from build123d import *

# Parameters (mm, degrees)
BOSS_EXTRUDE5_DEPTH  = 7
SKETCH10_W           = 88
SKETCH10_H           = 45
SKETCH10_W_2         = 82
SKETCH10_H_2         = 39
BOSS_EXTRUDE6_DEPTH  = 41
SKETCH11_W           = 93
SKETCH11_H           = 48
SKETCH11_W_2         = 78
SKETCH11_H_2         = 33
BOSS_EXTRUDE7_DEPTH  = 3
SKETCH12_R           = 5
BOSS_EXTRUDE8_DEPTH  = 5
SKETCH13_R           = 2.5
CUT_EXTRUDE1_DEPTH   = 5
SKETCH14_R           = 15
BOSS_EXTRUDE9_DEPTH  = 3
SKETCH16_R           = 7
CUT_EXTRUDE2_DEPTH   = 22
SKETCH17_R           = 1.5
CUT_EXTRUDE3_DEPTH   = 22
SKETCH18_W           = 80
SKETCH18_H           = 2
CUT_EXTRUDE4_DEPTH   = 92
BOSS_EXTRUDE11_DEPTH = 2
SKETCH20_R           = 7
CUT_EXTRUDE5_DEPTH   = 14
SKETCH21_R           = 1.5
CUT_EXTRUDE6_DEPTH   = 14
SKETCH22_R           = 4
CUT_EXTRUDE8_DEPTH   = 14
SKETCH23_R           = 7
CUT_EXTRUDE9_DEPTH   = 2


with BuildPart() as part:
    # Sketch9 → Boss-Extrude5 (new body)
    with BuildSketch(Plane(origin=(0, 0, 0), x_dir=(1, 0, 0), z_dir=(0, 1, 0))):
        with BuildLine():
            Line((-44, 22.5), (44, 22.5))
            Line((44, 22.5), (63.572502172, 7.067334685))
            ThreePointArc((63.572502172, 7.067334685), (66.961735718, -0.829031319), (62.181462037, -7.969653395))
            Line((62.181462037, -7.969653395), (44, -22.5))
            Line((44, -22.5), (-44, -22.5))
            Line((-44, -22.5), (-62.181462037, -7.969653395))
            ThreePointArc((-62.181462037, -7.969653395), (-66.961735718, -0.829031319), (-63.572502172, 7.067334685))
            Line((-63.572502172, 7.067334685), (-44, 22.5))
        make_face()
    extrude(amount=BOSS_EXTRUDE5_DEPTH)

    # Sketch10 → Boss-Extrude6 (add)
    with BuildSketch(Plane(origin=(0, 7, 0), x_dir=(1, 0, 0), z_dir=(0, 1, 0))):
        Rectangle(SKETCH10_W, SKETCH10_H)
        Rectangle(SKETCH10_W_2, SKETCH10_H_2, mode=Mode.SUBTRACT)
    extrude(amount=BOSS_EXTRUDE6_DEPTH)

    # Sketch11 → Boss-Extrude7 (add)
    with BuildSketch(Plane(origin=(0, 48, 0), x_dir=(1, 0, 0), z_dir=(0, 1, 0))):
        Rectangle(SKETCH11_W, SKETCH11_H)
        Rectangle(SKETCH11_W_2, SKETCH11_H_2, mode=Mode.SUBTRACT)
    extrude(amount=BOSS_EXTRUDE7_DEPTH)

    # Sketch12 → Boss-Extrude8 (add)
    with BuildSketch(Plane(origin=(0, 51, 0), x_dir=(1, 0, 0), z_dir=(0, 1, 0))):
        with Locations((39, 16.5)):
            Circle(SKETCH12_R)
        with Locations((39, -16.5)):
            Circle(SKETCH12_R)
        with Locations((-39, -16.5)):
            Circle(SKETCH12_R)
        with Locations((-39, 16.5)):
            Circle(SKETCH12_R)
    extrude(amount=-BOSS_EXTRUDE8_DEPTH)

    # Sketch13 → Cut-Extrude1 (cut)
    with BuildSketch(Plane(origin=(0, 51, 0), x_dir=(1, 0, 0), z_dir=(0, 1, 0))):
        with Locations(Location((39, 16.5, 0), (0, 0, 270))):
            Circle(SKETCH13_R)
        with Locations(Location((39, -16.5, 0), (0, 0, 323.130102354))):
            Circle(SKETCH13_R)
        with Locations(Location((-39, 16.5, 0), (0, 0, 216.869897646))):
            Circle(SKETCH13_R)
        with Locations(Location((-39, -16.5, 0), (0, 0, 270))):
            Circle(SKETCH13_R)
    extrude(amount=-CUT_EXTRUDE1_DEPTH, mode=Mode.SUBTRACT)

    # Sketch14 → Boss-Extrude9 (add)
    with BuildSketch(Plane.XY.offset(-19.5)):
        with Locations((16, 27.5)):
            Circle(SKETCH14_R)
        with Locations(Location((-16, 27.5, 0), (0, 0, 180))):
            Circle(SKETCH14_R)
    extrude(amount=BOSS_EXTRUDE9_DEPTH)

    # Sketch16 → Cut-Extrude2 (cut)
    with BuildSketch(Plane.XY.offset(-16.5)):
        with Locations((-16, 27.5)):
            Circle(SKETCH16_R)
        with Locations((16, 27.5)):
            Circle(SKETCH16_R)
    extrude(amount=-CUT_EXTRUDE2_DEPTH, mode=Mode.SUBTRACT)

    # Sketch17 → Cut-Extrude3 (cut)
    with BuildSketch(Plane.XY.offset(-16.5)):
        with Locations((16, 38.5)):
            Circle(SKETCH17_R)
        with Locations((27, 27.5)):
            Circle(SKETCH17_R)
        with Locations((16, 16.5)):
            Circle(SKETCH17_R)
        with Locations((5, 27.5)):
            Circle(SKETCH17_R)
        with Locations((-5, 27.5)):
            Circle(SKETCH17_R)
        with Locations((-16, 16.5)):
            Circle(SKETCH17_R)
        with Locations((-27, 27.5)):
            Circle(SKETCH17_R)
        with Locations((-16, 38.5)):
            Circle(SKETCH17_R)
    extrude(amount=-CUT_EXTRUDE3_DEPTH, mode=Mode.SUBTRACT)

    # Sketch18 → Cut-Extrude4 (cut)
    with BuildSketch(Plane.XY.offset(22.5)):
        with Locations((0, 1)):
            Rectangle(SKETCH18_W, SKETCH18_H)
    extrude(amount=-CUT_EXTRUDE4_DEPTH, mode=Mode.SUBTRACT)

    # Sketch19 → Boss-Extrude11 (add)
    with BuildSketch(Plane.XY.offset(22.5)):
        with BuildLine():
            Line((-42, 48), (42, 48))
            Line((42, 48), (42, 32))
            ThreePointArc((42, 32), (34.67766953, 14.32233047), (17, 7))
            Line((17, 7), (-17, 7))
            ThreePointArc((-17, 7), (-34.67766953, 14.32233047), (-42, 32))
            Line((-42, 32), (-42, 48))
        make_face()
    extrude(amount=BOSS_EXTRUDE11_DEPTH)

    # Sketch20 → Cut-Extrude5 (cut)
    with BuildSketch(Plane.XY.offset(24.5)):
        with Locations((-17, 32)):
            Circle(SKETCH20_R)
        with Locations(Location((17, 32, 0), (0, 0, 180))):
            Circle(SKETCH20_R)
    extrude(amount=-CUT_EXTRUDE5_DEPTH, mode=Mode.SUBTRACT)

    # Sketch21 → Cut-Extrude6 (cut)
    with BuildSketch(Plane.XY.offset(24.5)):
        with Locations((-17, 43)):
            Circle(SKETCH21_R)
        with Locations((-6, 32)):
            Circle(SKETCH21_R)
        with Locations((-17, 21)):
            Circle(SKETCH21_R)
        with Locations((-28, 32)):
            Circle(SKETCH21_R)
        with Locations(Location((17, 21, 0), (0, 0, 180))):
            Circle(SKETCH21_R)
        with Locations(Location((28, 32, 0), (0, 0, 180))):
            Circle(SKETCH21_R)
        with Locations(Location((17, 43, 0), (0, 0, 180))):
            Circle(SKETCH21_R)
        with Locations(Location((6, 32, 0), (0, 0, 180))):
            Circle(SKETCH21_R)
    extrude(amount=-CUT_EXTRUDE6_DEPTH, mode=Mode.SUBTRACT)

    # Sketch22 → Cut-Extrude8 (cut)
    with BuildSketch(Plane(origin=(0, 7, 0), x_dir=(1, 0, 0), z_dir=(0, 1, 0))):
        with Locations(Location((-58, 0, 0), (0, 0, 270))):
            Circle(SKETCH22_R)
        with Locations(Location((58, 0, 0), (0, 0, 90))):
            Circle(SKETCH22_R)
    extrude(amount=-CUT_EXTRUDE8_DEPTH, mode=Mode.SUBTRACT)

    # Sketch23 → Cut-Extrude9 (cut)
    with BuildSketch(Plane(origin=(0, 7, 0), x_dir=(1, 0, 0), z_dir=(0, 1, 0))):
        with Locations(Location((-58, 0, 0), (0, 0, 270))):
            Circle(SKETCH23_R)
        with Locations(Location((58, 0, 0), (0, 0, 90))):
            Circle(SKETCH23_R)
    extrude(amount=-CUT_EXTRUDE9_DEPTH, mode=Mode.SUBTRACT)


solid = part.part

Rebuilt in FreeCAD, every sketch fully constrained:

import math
import FreeCAD as App
import Part
import Sketcher

V = App.Vector
Q = App.Units.Quantity

doc = App.newDocument("Part")
body = doc.addObject("PartDesign::Body", "Body")

# Sketch on XZ plane
sketch1 = body.newObject("Sketcher::SketchObject", "Sketch")
sketch1.AttachmentSupport = (doc.getObject("XZ_Plane"), [""])
sketch1.MapMode = "FlatFace"
sketch1.addGeometry([
    Part.LineSegment(V(44, -22, 0), V(-44, -22, 0)),  # 0
    Part.LineSegment(V(-44, -22, 0), V(-64, -7, 0)),  # 1
    Part.ArcOfCircle(Part.Circle(V(-58, 0, 0), V(0, 0, 1), 9), math.radians(118), math.radians(232)),  # 2
    Part.LineSegment(V(-62, 8, 0), V(-44, 22, 0)),  # 3
    Part.LineSegment(V(-44, 22, 0), V(44, 22, 0)),  # 4
    Part.LineSegment(V(44, 22, 0), V(62, 8, 0)),  # 5
    Part.ArcOfCircle(Part.Circle(V(58, 0, 0), V(0, 0, 1), 9), math.radians(-52), math.radians(62)),  # 6
    Part.LineSegment(V(64, -7, 0), V(44, -22, 0)),  # 7
], False)
sketch1.addConstraint([
    Sketcher.Constraint("Coincident", 0, 2, 1, 1),
    Sketcher.Constraint("Tangent", 1, 2, 2, 2),
    Sketcher.Constraint("Coincident", 2, 1, 3, 1),
    Sketcher.Constraint("Coincident", 3, 2, 4, 1),
    Sketcher.Constraint("Coincident", 4, 2, 5, 1),
    Sketcher.Constraint("Coincident", 5, 2, 6, 2),
    Sketcher.Constraint("Tangent", 6, 1, 7, 1),
    Sketcher.Constraint("Coincident", 7, 2, 0, 1),
    Sketcher.Constraint("Horizontal", 0),
    Sketcher.Constraint("Horizontal", 4),
    Sketcher.Constraint("Equal", 2, 6),
    Sketcher.Constraint("Symmetric", 2, 3, 6, 3, -1, 1),
    Sketcher.Constraint("Symmetric", 0, 2, 4, 2, -1, 1),
    Sketcher.Constraint("Symmetric", 2, 1, 5, 2, -2),
    Sketcher.Constraint("Horizontal", 1, 2, 6, 1),
    Sketcher.Constraint("Vertical", 0, 2, 3, 2),
    Sketcher.Constraint("Radius", 2, Q("9 mm")),
    Sketcher.Constraint("DistanceX", 0, 2, 0, 1, Q("88 mm")),
    Sketcher.Constraint("DistanceX", 2, 3, -1, 1, Q("58 mm")),
    Sketcher.Constraint("DistanceY", 0, 2, 3, 2, Q("45 mm")),
    Sketcher.Constraint("DistanceX", 1, 2, 2, 1, Q("1.39104 mm")),
])
pad1 = body.newObject("PartDesign::Pad", "Pad")
pad1.Profile = sketch1
pad1.Length = 7
pad1.Reversed = True

# Sketch on XZ plane
sketch2 = body.newObject("Sketcher::SketchObject", "Sketch001")
sketch2.AttachmentSupport = (doc.getObject("XZ_Plane"), [""])
sketch2.MapMode = "FlatFace"
sketch2.AttachmentOffset = App.Placement(V(0, 0, -7), App.Rotation())
sketch2.addGeometry([
    Part.LineSegment(V(-44, -22, 0), V(-44, 22, 0)),  # 0
    Part.LineSegment(V(-44, 22, 0), V(44, 22, 0)),  # 1
    Part.LineSegment(V(44, 22, 0), V(44, -22, 0)),  # 2
    Part.LineSegment(V(44, -22, 0), V(-44, -22, 0)),  # 3
    Part.LineSegment(V(41, 20, 0), V(-41, 20, 0)),  # 4
    Part.LineSegment(V(-41, 20, 0), V(-41, -20, 0)),  # 5
    Part.LineSegment(V(-41, -20, 0), V(41, -20, 0)),  # 6
    Part.LineSegment(V(41, -20, 0), V(41, 20, 0)),  # 7
], False)
sketch2.addConstraint([
    Sketcher.Constraint("Coincident", 0, 2, 1, 1),
    Sketcher.Constraint("Coincident", 1, 2, 2, 1),
    Sketcher.Constraint("Coincident", 2, 2, 3, 1),
    Sketcher.Constraint("Coincident", 3, 2, 0, 1),
    Sketcher.Constraint("Coincident", 4, 2, 5, 1),
    Sketcher.Constraint("Coincident", 5, 2, 6, 1),
    Sketcher.Constraint("Coincident", 6, 2, 7, 1),
    Sketcher.Constraint("Coincident", 7, 2, 4, 1),
    Sketcher.Constraint("Vertical", 0),
    Sketcher.Constraint("Horizontal", 1),
    Sketcher.Constraint("Vertical", 2),
    Sketcher.Constraint("Horizontal", 3),
    Sketcher.Constraint("Horizontal", 4),
    Sketcher.Constraint("Vertical", 5),
    Sketcher.Constraint("Horizontal", 6),
    Sketcher.Constraint("Vertical", 7),
    Sketcher.Constraint("Symmetric", 0, 2, 2, 2, -1, 1),
    Sketcher.Constraint("Symmetric", 4, 2, 6, 2, -1, 1),
    Sketcher.Constraint("DistanceX", 1, 1, 1, 2, Q("88 mm")),
    Sketcher.Constraint("DistanceX", 4, 2, 4, 1, Q("82 mm")),
    Sketcher.Constraint("DistanceY", 0, 1, 0, 2, Q("45 mm")),
    Sketcher.Constraint("DistanceY", 5, 2, 5, 1, Q("39 mm")),
])
pad2 = body.newObject("PartDesign::Pad", "Pad001")
pad2.Profile = sketch2
pad2.Length = 41
pad2.Reversed = True

# Sketch on XZ plane
sketch3 = body.newObject("Sketcher::SketchObject", "Sketch002")
sketch3.AttachmentSupport = (doc.getObject("XZ_Plane"), [""])
sketch3.MapMode = "FlatFace"
sketch3.AttachmentOffset = App.Placement(V(0, 0, -48), App.Rotation())
sketch3.addGeometry([
    Part.LineSegment(V(-46, -24, 0), V(-46, 24, 0)),  # 0
    Part.LineSegment(V(-46, 24, 0), V(46, 24, 0)),  # 1
    Part.LineSegment(V(46, 24, 0), V(46, -24, 0)),  # 2
    Part.LineSegment(V(46, -24, 0), V(-46, -24, 0)),  # 3
    Part.LineSegment(V(39, 16, 0), V(-39, 16, 0)),  # 4
    Part.LineSegment(V(-39, 16, 0), V(-39, -16, 0)),  # 5
    Part.LineSegment(V(-39, -16, 0), V(39, -16, 0)),  # 6
    Part.LineSegment(V(39, -16, 0), V(39, 16, 0)),  # 7
], False)
sketch3.addConstraint([
    Sketcher.Constraint("Coincident", 0, 2, 1, 1),
    Sketcher.Constraint("Coincident", 1, 2, 2, 1),
    Sketcher.Constraint("Coincident", 2, 2, 3, 1),
    Sketcher.Constraint("Coincident", 3, 2, 0, 1),
    Sketcher.Constraint("Coincident", 4, 2, 5, 1),
    Sketcher.Constraint("Coincident", 5, 2, 6, 1),
    Sketcher.Constraint("Coincident", 6, 2, 7, 1),
    Sketcher.Constraint("Coincident", 7, 2, 4, 1),
    Sketcher.Constraint("Vertical", 0),
    Sketcher.Constraint("Horizontal", 1),
    Sketcher.Constraint("Vertical", 2),
    Sketcher.Constraint("Horizontal", 3),
    Sketcher.Constraint("Horizontal", 4),
    Sketcher.Constraint("Vertical", 5),
    Sketcher.Constraint("Horizontal", 6),
    Sketcher.Constraint("Vertical", 7),
    Sketcher.Constraint("Symmetric", 0, 2, 2, 2, -1, 1),
    Sketcher.Constraint("Symmetric", 4, 2, 6, 2, -1, 1),
    Sketcher.Constraint("DistanceX", 1, 1, 1, 2, Q("93 mm")),
    Sketcher.Constraint("DistanceX", 4, 2, 4, 1, Q("78 mm")),
    Sketcher.Constraint("DistanceY", 0, 1, 0, 2, Q("48 mm")),
    Sketcher.Constraint("DistanceY", 5, 2, 5, 1, Q("33 mm")),
])
pad3 = body.newObject("PartDesign::Pad", "Pad002")
pad3.Profile = sketch3
pad3.Length = 3
pad3.Reversed = True

# Sketch on XZ plane
sketch4 = body.newObject("Sketcher::SketchObject", "Sketch003")
sketch4.AttachmentSupport = (doc.getObject("XZ_Plane"), [""])
sketch4.MapMode = "FlatFace"
sketch4.AttachmentOffset = App.Placement(V(0, 0, -51), App.Rotation())
sketch4.addGeometry([
    Part.Circle(V(39, -16, 0), V(0, 0, 1), 5),
    Part.Circle(V(39, 16, 0), V(0, 0, 1), 5),
    Part.Circle(V(-39, 16, 0), V(0, 0, 1), 5),
    Part.Circle(V(-39, -16, 0), V(0, 0, 1), 5),
], False)
sketch4.addConstraint([
    Sketcher.Constraint("Equal", 0, 1),
    Sketcher.Constraint("Equal", 1, 2),
    Sketcher.Constraint("Equal", 2, 3),
    Sketcher.Constraint("Symmetric", 0, 3, 2, 3, -1, 1),
    Sketcher.Constraint("Symmetric", 1, 3, 3, 3, -1, 1),
    Sketcher.Constraint("Symmetric", 1, 3, 2, 3, -2),
    Sketcher.Constraint("Diameter", 0, Q("10 mm")),
    Sketcher.Constraint("DistanceX", -1, 1, 0, 3, Q("39 mm")),
    Sketcher.Constraint("DistanceY", 0, 3, 1, 3, Q("33 mm")),
])
pad4 = body.newObject("PartDesign::Pad", "Pad003")
pad4.Profile = sketch4
pad4.Length = 5

# Sketch on XZ plane
sketch5 = body.newObject("Sketcher::SketchObject", "Sketch004")
sketch5.AttachmentSupport = (doc.getObject("XZ_Plane"), [""])
sketch5.MapMode = "FlatFace"
sketch5.AttachmentOffset = App.Placement(V(0, 0, -51), App.Rotation())
sketch5.addGeometry([
    Part.Circle(V(39, -16.5, 0), V(0, 0, 1), 2.5),
    Part.Circle(V(39, 16.5, 0), V(0, 0, 1), 2.5),
    Part.Circle(V(-39, -16.5, 0), V(0, 0, 1), 2.5),
    Part.Circle(V(-39, 16.5, 0), V(0, 0, 1), 2.5),
], False)
sketch5.addConstraint([
    Sketcher.Constraint("Equal", 0, 1),
    Sketcher.Constraint("Equal", 1, 2),
    Sketcher.Constraint("Equal", 2, 3),
    Sketcher.Constraint("Symmetric", 1, 3, 2, 3, -1, 1),
    Sketcher.Constraint("Symmetric", 0, 3, 3, 3, -1, 1),
    Sketcher.Constraint("Symmetric", 0, 3, 2, 3, -2),
    Sketcher.Constraint("Diameter", 0, Q("5 mm")),
    Sketcher.Constraint("DistanceX", -1, 1, 0, 3, Q("39 mm")),
    Sketcher.Constraint("DistanceY", 0, 3, 1, 3, Q("33 mm")),
])
pocket1 = body.newObject("PartDesign::Pocket", "Pocket")
pocket1.Profile = sketch5
pocket1.Length = 5
pocket1.Reversed = True

# Sketch on XY plane
sketch6 = body.newObject("Sketcher::SketchObject", "Sketch005")
sketch6.AttachmentSupport = (doc.getObject("XY_Plane"), [""])
sketch6.MapMode = "FlatFace"
sketch6.AttachmentOffset = App.Placement(V(0, 0, -19.5), App.Rotation())
sketch6.addGeometry([
    Part.Circle(V(16, 28, 0), V(0, 0, 1), 15),
    Part.Circle(V(-16, 28, 0), V(0, 0, 1), 15),
], False)
sketch6.addConstraint([
    Sketcher.Constraint("Equal", 0, 1),
    Sketcher.Constraint("Symmetric", 0, 3, 1, 3, -2),
    Sketcher.Constraint("Diameter", 0, Q("30 mm")),
    Sketcher.Constraint("DistanceX", -1, 1, 0, 3, Q("16 mm")),
    Sketcher.Constraint("DistanceY", -1, 1, 0, 3, Q("27.5 mm")),
])
pad5 = body.newObject("PartDesign::Pad", "Pad004")
pad5.Profile = sketch6
pad5.Length = 3

# Sketch on XY plane
sketch7 = body.newObject("Sketcher::SketchObject", "Sketch006")
sketch7.AttachmentSupport = (doc.getObject("XY_Plane"), [""])
sketch7.MapMode = "FlatFace"
sketch7.AttachmentOffset = App.Placement(V(0, 0, -16.5), App.Rotation())
sketch7.addGeometry([
    Part.Circle(V(-16, 28, 0), V(0, 0, 1), 7),
    Part.Circle(V(16, 28, 0), V(0, 0, 1), 7),
], False)
sketch7.addConstraint([
    Sketcher.Constraint("Equal", 0, 1),
    Sketcher.Constraint("Symmetric", 0, 3, 1, 3, -2),
    Sketcher.Constraint("Diameter", 0, Q("14 mm")),
    Sketcher.Constraint("DistanceX", 0, 3, -1, 1, Q("16 mm")),
    Sketcher.Constraint("DistanceY", -1, 1, 0, 3, Q("27.5 mm")),
])
pocket2 = body.newObject("PartDesign::Pocket", "Pocket001")
pocket2.Profile = sketch7
pocket2.Length = 22

# Sketch on XY plane
sketch8 = body.newObject("Sketcher::SketchObject", "Sketch007")
sketch8.AttachmentSupport = (doc.getObject("XY_Plane"), [""])
sketch8.MapMode = "FlatFace"
sketch8.AttachmentOffset = App.Placement(V(0, 0, -16.5), App.Rotation())
sketch8.addGeometry([
    Part.Circle(V(16, 38.5, 0), V(0, 0, 1), 1.5),  # 0
    Part.Circle(V(27, 27.5, 0), V(0, 0, 1), 1.5),  # 1
    Part.Circle(V(16, 16.5, 0), V(0, 0, 1), 1.5),  # 2
    Part.Circle(V(5, 27.5, 0), V(0, 0, 1), 1.5),  # 3
    Part.Circle(V(-5, 27.5, 0), V(0, 0, 1), 1.5),  # 4
    Part.Circle(V(-16, 16.5, 0), V(0, 0, 1), 1.5),  # 5
    Part.Circle(V(-27, 27.5, 0), V(0, 0, 1), 1.5),  # 6
    Part.Circle(V(-16, 38.5, 0), V(0, 0, 1), 1.5),  # 7
], False)
sketch8.addConstraint([
    Sketcher.Constraint("Equal", 0, 1),
    Sketcher.Constraint("Equal", 1, 2),
    Sketcher.Constraint("Equal", 2, 3),
    Sketcher.Constraint("Equal", 3, 4),
    Sketcher.Constraint("Equal", 4, 5),
    Sketcher.Constraint("Equal", 5, 6),
    Sketcher.Constraint("Equal", 6, 7),
    Sketcher.Constraint("Symmetric", 3, 3, 4, 3, -2),
    Sketcher.Constraint("Symmetric", 2, 3, 5, 3, -2),
    Sketcher.Constraint("Symmetric", 1, 3, 6, 3, -2),
    Sketcher.Constraint("Symmetric", 0, 3, 7, 3, -2),
    Sketcher.Constraint("Horizontal", 1, 3, 3, 3),
    Sketcher.Constraint("Vertical", 0, 3, 2, 3),
    Sketcher.Constraint("Diameter", 0, Q("3 mm")),
    Sketcher.Constraint("DistanceX", -1, 1, 0, 3, Q("16 mm")),
    Sketcher.Constraint("DistanceX", -1, 1, 1, 3, Q("27 mm")),
    Sketcher.Constraint("DistanceX", -1, 1, 3, 3, Q("5 mm")),
    Sketcher.Constraint("DistanceY", 1, 3, 0, 3, Q("11 mm")),
    Sketcher.Constraint("DistanceY", 2, 3, 1, 3, Q("11 mm")),
    Sketcher.Constraint("DistanceY", -1, 1, 0, 3, Q("38.5 mm")),
])
pocket3 = body.newObject("PartDesign::Pocket", "Pocket002")
pocket3.Profile = sketch8
pocket3.Length = 22

# Sketch on XY plane
sketch9 = body.newObject("Sketcher::SketchObject", "Sketch008")
sketch9.AttachmentSupport = (doc.getObject("XY_Plane"), [""])
sketch9.MapMode = "FlatFace"
sketch9.AttachmentOffset = App.Placement(V(0, 0, 22.5), App.Rotation())
sketch9.addGeometry([
    Part.LineSegment(V(-40, 2, 0), V(-40, 0, 0)),
    Part.LineSegment(V(-40, 0, 0), V(40, 0, 0)),
    Part.LineSegment(V(40, 0, 0), V(40, 2, 0)),
    Part.LineSegment(V(40, 2, 0), V(-40, 2, 0)),
], False)
sketch9.addConstraint([
    Sketcher.Constraint("Coincident", 0, 2, 1, 1),
    Sketcher.Constraint("Coincident", 1, 2, 2, 1),
    Sketcher.Constraint("Coincident", 2, 2, 3, 1),
    Sketcher.Constraint("Coincident", 3, 2, 0, 1),
    Sketcher.Constraint("Vertical", 0),
    Sketcher.Constraint("Horizontal", 1),
    Sketcher.Constraint("Vertical", 2),
    Sketcher.Constraint("Horizontal", 3),
    Sketcher.Constraint("Symmetric", 0, 2, 1, 2, -1, 1),
    Sketcher.Constraint("DistanceX", 1, 1, 1, 2, Q("80 mm")),
    Sketcher.Constraint("DistanceY", 0, 2, 0, 1, Q("2 mm")),
])
pocket4 = body.newObject("PartDesign::Pocket", "Pocket003")
pocket4.Profile = sketch9
pocket4.Length = 92

# Sketch on XY plane
sketch10 = body.newObject("Sketcher::SketchObject", "Sketch009")
sketch10.AttachmentSupport = (doc.getObject("XY_Plane"), [""])
sketch10.MapMode = "FlatFace"
sketch10.AttachmentOffset = App.Placement(V(0, 0, 22.5), App.Rotation())
sketch10.addGeometry([
    Part.LineSegment(V(42, 48, 0), V(-42, 48, 0)),  # 0
    Part.LineSegment(V(-42, 48, 0), V(-42, 32, 0)),  # 1
    Part.ArcOfCircle(Part.Circle(V(-17, 32, 0), V(0, 0, 1), 25), math.radians(180), math.radians(270)),  # 2
    Part.LineSegment(V(-17, 7, 0), V(17, 7, 0)),  # 3
    Part.ArcOfCircle(Part.Circle(V(17, 32, 0), V(0, 0, 1), 25), math.radians(-90), math.radians(0)),  # 4
    Part.LineSegment(V(42, 32, 0), V(42, 48, 0)),  # 5
], False)
sketch10.addConstraint([
    Sketcher.Constraint("Coincident", 0, 2, 1, 1),
    Sketcher.Constraint("Tangent", 1, 2, 2, 1),
    Sketcher.Constraint("Tangent", 2, 2, 3, 1),
    Sketcher.Constraint("Tangent", 3, 2, 4, 1),
    Sketcher.Constraint("Tangent", 4, 2, 5, 1),
    Sketcher.Constraint("Coincident", 5, 2, 0, 1),
    Sketcher.Constraint("Horizontal", 0),
    Sketcher.Constraint("Vertical", 1),
    Sketcher.Constraint("Horizontal", 3),
    Sketcher.Constraint("Vertical", 5),
    Sketcher.Constraint("Equal", 2, 4),
    Sketcher.Constraint("Radius", 2, Q("25 mm")),
    Sketcher.Constraint("DistanceX", 0, 2, 0, 1, Q("84 mm")),
    Sketcher.Constraint("DistanceY", 1, 2, 1, 1, Q("16 mm")),
    Sketcher.Constraint("DistanceX", 2, 3, -1, 1, Q("17 mm")),
    Sketcher.Constraint("DistanceY", -1, 1, 2, 3, Q("32 mm")),
])
pad6 = body.newObject("PartDesign::Pad", "Pad005")
pad6.Profile = sketch10
pad6.Length = 2

# Sketch on XY plane
sketch11 = body.newObject("Sketcher::SketchObject", "Sketch010")
sketch11.AttachmentSupport = (doc.getObject("XY_Plane"), [""])
sketch11.MapMode = "FlatFace"
sketch11.AttachmentOffset = App.Placement(V(0, 0, 24.5), App.Rotation())
sketch11.addGeometry([
    Part.Circle(V(-17, 32, 0), V(0, 0, 1), 7),
    Part.Circle(V(17, 32, 0), V(0, 0, 1), 7),
], False)
sketch11.addConstraint([
    Sketcher.Constraint("Equal", 0, 1),
    Sketcher.Constraint("Symmetric", 0, 3, 1, 3, -2),
    Sketcher.Constraint("Diameter", 0, Q("14 mm")),
    Sketcher.Constraint("DistanceX", 0, 3, -1, 1, Q("17 mm")),
    Sketcher.Constraint("DistanceY", -1, 1, 0, 3, Q("32 mm")),
])
pocket5 = body.newObject("PartDesign::Pocket", "Pocket004")
pocket5.Profile = sketch11
pocket5.Length = 14

# Sketch on XY plane
sketch12 = body.newObject("Sketcher::SketchObject", "Sketch011")
sketch12.AttachmentSupport = (doc.getObject("XY_Plane"), [""])
sketch12.MapMode = "FlatFace"
sketch12.AttachmentOffset = App.Placement(V(0, 0, 24.5), App.Rotation())
sketch12.addGeometry([
    Part.Circle(V(-17, 43, 0), V(0, 0, 1), 1.5),  # 0
    Part.Circle(V(-6, 32, 0), V(0, 0, 1), 1.5),  # 1
    Part.Circle(V(-17, 21, 0), V(0, 0, 1), 1.5),  # 2
    Part.Circle(V(-28, 32, 0), V(0, 0, 1), 1.5),  # 3
    Part.Circle(V(17, 21, 0), V(0, 0, 1), 1.5),  # 4
    Part.Circle(V(28, 32, 0), V(0, 0, 1), 1.5),  # 5
    Part.Circle(V(17, 43, 0), V(0, 0, 1), 1.5),  # 6
    Part.Circle(V(6, 32, 0), V(0, 0, 1), 1.5),  # 7
], False)
sketch12.addConstraint([
    Sketcher.Constraint("Equal", 0, 1),
    Sketcher.Constraint("Equal", 1, 2),
    Sketcher.Constraint("Equal", 2, 3),
    Sketcher.Constraint("Equal", 3, 4),
    Sketcher.Constraint("Equal", 4, 5),
    Sketcher.Constraint("Equal", 5, 6),
    Sketcher.Constraint("Equal", 6, 7),
    Sketcher.Constraint("Symmetric", 2, 3, 4, 3, -2),
    Sketcher.Constraint("Symmetric", 3, 3, 5, 3, -2),
    Sketcher.Constraint("Symmetric", 0, 3, 6, 3, -2),
    Sketcher.Constraint("Symmetric", 1, 3, 7, 3, -2),
    Sketcher.Constraint("Horizontal", 1, 3, 3, 3),
    Sketcher.Constraint("Vertical", 0, 3, 2, 3),
    Sketcher.Constraint("Diameter", 0, Q("3 mm")),
    Sketcher.Constraint("DistanceX", 0, 3, -1, 1, Q("17 mm")),
    Sketcher.Constraint("DistanceY", -1, 1, 0, 3, Q("43 mm")),
    Sketcher.Constraint("DistanceX", 1, 3, -1, 1, Q("6 mm")),
    Sketcher.Constraint("DistanceY", -1, 1, 1, 3, Q("32 mm")),
    Sketcher.Constraint("DistanceY", -1, 1, 2, 3, Q("21 mm")),
    Sketcher.Constraint("DistanceX", 3, 3, -1, 1, Q("28 mm")),
])
pocket6 = body.newObject("PartDesign::Pocket", "Pocket005")
pocket6.Profile = sketch12
pocket6.Length = 14

# Sketch on XZ plane
sketch13 = body.newObject("Sketcher::SketchObject", "Sketch012")
sketch13.AttachmentSupport = (doc.getObject("XZ_Plane"), [""])
sketch13.MapMode = "FlatFace"
sketch13.AttachmentOffset = App.Placement(V(0, 0, -7), App.Rotation())
sketch13.addGeometry([
    Part.Circle(V(-58, 0, 0), V(0, 0, 1), 4),
    Part.Circle(V(58, 0, 0), V(0, 0, 1), 4),
], False)
sketch13.addConstraint([
    Sketcher.Constraint("Equal", 0, 1),
    Sketcher.Constraint("Symmetric", 0, 3, 1, 3, -1, 1),
    Sketcher.Constraint("PointOnObject", 0, 3, -1),
    Sketcher.Constraint("Diameter", 0, Q("8 mm")),
    Sketcher.Constraint("DistanceX", 0, 3, -1, 1, Q("58 mm")),
])
pocket7 = body.newObject("PartDesign::Pocket", "Pocket006")
pocket7.Profile = sketch13
pocket7.Length = 14
pocket7.Reversed = True

# Sketch on XZ plane
sketch14 = body.newObject("Sketcher::SketchObject", "Sketch013")
sketch14.AttachmentSupport = (doc.getObject("XZ_Plane"), [""])
sketch14.MapMode = "FlatFace"
sketch14.AttachmentOffset = App.Placement(V(0, 0, -7), App.Rotation())
sketch14.addGeometry([
    Part.Circle(V(-58, 0, 0), V(0, 0, 1), 7),
    Part.Circle(V(58, 0, 0), V(0, 0, 1), 7),
], False)
sketch14.addConstraint([
    Sketcher.Constraint("Equal", 0, 1),
    Sketcher.Constraint("Symmetric", 0, 3, 1, 3, -1, 1),
    Sketcher.Constraint("PointOnObject", 0, 3, -1),
    Sketcher.Constraint("Diameter", 0, Q("14 mm")),
    Sketcher.Constraint("DistanceX", 0, 3, -1, 1, Q("58 mm")),
])
pocket8 = body.newObject("PartDesign::Pocket", "Pocket007")
pocket8.Profile = sketch14
pocket8.Length = 2
pocket8.Reversed = True

doc.recompute()
